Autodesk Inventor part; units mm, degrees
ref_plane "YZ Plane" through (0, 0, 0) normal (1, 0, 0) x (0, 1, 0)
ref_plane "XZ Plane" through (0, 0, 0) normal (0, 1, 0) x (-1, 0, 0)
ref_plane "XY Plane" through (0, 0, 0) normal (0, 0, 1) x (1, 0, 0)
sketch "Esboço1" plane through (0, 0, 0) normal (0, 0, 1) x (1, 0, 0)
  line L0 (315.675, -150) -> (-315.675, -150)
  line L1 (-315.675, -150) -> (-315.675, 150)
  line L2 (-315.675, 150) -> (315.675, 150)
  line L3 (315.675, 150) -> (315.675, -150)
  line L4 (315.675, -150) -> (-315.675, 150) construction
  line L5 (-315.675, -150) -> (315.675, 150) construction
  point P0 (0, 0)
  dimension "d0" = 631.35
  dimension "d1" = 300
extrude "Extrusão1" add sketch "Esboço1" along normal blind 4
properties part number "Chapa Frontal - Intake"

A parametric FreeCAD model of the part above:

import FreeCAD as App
import Part
import Sketcher

V = App.Vector
Q = App.Units.Quantity

doc = App.newDocument("Part")
body = doc.addObject("PartDesign::Body", "Body")

# Sketch on XY plane
sketch1 = body.newObject("Sketcher::SketchObject", "Sketch")
sketch1.AttachmentSupport = (doc.getObject("XY_Plane"), [""])
sketch1.MapMode = "FlatFace"
sketch1.addGeometry([
    Part.LineSegment(V(-316, -150, 0), V(316, -150, 0)),
    Part.LineSegment(V(316, -150, 0), V(316, 150, 0)),
    Part.LineSegment(V(316, 150, 0), V(-316, 150, 0)),
    Part.LineSegment(V(-316, 150, 0), V(-316, -150, 0)),
], False)
sketch1.addConstraint([
    Sketcher.Constraint("Coincident", 0, 2, 1, 1),
    Sketcher.Constraint("Coincident", 1, 2, 2, 1),
    Sketcher.Constraint("Coincident", 2, 2, 3, 1),
    Sketcher.Constraint("Coincident", 3, 2, 0, 1),
    Sketcher.Constraint("Horizontal", 0),
    Sketcher.Constraint("Vertical", 1),
    Sketcher.Constraint("Horizontal", 2),
    Sketcher.Constraint("Vertical", 3),
    Sketcher.Constraint("Symmetric", 0, 2, 2, 2, -1, 1),
    Sketcher.Constraint("DistanceY", 1, 1, 1, 2, Q("300 mm")),
    Sketcher.Constraint("DistanceX", 0, 1, 0, 2, Q("631.35 mm")),
])
pad1 = body.newObject("PartDesign::Pad", "Pad")
pad1.Profile = sketch1
pad1.Length = 4

doc.recompute()
